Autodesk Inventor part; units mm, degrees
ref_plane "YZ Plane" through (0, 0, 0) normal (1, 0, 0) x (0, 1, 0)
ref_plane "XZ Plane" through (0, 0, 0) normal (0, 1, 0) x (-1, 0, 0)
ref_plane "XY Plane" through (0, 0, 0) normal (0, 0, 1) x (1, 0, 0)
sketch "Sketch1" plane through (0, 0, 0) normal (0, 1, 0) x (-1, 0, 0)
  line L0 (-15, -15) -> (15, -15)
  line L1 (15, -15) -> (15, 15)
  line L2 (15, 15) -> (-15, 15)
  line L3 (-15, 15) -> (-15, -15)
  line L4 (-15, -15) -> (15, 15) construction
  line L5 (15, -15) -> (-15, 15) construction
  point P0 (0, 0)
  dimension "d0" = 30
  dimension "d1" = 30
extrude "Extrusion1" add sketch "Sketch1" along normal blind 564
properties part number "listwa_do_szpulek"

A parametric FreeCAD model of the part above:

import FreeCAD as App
import Part
import Sketcher


def add_polygon(sketch, points):
    """Adds a closed chain of lines whose ends are joined by coincident constraints."""
    first, n = sketch.GeometryCount, len(points)
    for a, b in zip(points, points[1:] + points[:1]):
        sketch.addGeometry(Part.LineSegment(App.Vector(*a, 0), App.Vector(*b, 0)), False)
    for i in range(n):
        sketch.addConstraint(Sketcher.Constraint("Coincident", first + i, 2, first + (i + 1) % n, 1))

doc = App.newDocument("Part")
body = doc.addObject("PartDesign::Body", "Body")

# Sketch on XZ plane
sketch1 = body.newObject("Sketcher::SketchObject", "Sketch")
sketch1.AttachmentSupport = (doc.getObject("XZ_Plane"), [""])
sketch1.MapMode = "FlatFace"
add_polygon(sketch1, [(15, 15), (15, -15), (-15, -15), (-15, 15)])  # lines 0-3
sketch1.addConstraint(Sketcher.Constraint("Vertical", 0))
sketch1.addConstraint(Sketcher.Constraint("Horizontal", 1))
sketch1.addConstraint(Sketcher.Constraint("Vertical", 2))
sketch1.addConstraint(Sketcher.Constraint("Horizontal", 3))
sketch1.addConstraint(Sketcher.Constraint("Symmetric", 0, 2, 2, 2, -1, 1))
sketch1.addConstraint(Sketcher.Constraint("Equal", 3, 0))
sketch1.addConstraint(Sketcher.Constraint("DistanceX", 1, 2, 1, 1, 30.0))
pad1 = body.newObject("PartDesign::Pad", "Pad")
pad1.Profile = sketch1
pad1.Length = 564
pad1.Reversed = True

doc.recompute()
